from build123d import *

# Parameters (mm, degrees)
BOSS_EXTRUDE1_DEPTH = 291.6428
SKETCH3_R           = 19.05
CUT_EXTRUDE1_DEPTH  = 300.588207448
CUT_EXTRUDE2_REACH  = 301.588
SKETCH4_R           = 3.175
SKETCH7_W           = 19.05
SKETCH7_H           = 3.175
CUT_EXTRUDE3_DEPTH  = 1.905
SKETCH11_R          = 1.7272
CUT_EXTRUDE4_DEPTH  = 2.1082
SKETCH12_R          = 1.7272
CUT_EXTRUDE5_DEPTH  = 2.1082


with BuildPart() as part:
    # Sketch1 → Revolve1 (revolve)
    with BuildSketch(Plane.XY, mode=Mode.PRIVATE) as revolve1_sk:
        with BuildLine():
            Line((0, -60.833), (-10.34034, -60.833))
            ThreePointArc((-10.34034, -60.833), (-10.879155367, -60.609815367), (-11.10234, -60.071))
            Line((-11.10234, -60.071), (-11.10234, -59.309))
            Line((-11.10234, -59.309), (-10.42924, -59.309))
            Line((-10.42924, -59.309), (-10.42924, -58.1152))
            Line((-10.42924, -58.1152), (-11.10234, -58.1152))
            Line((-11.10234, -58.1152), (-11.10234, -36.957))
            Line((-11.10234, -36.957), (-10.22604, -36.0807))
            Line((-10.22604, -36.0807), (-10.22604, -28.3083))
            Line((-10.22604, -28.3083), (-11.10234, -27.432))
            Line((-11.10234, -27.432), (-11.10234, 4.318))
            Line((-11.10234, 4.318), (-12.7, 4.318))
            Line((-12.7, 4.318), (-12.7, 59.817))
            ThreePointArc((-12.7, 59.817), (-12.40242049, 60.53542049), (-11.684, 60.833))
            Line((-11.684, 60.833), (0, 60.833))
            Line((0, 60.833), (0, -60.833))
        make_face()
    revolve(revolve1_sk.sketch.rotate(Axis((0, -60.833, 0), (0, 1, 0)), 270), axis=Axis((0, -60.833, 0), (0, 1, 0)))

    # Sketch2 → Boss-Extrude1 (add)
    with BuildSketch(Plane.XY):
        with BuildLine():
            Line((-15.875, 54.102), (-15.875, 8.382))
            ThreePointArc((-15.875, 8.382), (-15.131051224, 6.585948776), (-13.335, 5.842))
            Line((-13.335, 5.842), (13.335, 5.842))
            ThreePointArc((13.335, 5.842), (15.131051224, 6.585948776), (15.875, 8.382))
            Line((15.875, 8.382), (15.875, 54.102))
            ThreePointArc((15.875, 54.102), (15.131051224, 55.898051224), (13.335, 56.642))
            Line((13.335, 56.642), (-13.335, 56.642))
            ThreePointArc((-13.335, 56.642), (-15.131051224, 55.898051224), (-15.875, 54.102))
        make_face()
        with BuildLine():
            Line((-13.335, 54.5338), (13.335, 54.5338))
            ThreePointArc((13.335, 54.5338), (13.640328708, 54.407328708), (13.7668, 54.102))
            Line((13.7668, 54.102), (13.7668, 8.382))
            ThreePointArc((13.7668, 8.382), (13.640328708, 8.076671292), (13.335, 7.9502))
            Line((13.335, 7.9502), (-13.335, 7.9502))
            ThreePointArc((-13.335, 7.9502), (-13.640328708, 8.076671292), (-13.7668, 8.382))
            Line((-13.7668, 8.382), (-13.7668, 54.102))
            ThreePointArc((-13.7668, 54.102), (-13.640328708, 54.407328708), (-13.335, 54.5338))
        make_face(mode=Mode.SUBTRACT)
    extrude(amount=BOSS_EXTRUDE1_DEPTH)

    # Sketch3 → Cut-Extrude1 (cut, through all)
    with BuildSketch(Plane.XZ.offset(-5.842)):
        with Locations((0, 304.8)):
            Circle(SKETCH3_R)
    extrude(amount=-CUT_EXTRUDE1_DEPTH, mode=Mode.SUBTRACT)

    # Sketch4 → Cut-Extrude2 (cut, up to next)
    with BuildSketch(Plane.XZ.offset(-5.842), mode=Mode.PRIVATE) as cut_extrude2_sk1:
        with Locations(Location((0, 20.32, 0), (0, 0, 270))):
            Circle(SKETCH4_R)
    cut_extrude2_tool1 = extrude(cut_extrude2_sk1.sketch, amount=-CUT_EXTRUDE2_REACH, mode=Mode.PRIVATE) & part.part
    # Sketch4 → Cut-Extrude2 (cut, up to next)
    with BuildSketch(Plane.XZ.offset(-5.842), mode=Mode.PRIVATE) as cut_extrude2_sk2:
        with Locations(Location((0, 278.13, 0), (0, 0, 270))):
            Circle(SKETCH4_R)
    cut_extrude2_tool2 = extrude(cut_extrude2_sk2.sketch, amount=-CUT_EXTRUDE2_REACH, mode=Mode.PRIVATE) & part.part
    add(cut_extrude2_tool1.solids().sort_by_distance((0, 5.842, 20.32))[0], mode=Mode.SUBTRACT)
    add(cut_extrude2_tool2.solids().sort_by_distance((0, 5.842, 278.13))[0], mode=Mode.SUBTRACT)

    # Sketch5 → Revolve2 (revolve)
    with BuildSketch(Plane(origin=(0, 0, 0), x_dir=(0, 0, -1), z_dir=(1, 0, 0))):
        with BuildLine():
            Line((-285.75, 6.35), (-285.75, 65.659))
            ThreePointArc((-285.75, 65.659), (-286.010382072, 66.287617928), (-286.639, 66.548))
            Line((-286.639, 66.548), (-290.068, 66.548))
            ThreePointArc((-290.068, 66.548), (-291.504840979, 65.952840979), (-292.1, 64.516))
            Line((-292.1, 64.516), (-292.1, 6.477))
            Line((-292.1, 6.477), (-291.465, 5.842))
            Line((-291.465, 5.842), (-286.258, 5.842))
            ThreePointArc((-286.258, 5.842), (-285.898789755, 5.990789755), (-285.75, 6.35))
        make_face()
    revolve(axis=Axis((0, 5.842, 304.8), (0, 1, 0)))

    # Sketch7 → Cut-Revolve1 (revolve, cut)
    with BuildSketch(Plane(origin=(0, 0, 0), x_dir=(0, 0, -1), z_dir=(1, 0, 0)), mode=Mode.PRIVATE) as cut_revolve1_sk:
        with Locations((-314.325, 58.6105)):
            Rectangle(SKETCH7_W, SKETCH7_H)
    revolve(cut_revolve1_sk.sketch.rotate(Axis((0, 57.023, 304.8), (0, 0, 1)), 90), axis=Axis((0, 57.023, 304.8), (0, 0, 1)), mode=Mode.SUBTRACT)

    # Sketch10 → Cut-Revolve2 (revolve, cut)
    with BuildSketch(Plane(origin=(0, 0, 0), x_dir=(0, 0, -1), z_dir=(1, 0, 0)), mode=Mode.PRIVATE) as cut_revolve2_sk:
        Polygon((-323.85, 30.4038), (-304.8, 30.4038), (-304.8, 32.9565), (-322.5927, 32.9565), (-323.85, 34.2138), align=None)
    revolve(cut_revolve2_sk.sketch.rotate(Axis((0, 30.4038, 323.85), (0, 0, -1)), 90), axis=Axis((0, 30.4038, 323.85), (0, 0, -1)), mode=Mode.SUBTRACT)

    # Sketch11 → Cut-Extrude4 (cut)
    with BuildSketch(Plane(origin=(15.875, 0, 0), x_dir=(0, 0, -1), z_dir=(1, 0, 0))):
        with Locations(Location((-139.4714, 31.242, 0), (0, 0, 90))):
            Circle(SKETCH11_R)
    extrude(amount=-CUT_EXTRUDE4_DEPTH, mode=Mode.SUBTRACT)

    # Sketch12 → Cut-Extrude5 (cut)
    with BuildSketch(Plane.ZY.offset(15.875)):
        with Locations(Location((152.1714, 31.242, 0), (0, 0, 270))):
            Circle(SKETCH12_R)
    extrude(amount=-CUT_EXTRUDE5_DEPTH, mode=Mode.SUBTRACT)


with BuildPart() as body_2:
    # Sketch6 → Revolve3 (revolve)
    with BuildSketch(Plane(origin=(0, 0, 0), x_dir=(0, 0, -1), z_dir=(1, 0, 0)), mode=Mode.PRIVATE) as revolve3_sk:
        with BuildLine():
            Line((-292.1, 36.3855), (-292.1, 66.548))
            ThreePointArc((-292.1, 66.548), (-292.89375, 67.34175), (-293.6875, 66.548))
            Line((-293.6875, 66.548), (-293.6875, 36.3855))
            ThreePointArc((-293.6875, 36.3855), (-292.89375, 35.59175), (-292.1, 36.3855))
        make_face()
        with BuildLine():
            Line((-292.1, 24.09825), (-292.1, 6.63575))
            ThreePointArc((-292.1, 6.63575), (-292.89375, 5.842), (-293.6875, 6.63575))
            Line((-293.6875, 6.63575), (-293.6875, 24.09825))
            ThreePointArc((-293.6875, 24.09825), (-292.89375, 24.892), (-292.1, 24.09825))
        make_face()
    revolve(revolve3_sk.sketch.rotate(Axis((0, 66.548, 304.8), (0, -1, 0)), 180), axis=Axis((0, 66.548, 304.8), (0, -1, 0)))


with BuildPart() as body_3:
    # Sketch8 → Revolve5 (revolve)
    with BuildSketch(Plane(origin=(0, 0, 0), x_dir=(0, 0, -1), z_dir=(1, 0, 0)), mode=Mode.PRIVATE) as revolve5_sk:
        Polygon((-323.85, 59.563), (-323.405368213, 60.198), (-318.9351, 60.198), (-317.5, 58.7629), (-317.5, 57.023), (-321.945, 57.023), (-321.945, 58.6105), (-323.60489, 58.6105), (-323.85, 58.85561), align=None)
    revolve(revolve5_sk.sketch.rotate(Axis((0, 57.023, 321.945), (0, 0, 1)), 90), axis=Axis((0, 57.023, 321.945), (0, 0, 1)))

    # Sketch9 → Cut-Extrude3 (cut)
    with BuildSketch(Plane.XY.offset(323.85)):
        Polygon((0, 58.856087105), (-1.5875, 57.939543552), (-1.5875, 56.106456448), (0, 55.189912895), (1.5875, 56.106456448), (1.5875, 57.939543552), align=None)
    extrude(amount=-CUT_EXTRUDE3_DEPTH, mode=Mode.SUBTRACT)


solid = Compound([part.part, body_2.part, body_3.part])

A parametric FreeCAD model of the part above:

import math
import FreeCAD as App
import Part
import Sketcher
Q = App.Units.Quantity


def add_polygon(sketch, points):
    """Adds a closed chain of lines whose ends are joined by coincident constraints."""
    first, n = sketch.GeometryCount, len(points)
    for a, b in zip(points, points[1:] + points[:1]):
        sketch.addGeometry(Part.LineSegment(App.Vector(*a, 0), App.Vector(*b, 0)), False)
    for i in range(n):
        sketch.addConstraint(Sketcher.Constraint("Coincident", first + i, 2, first + (i + 1) % n, 1))

doc = App.newDocument("Part")
params = doc.addObject("Spreadsheet::Sheet", "Params")
for row, (alias, value) in enumerate([
    ("sketch1_radius", "0.04 in"),
    ("sketch1_radius2", "0.03 in"),
    ("sketch1_width", "0.46 in"),
    ("sketch1_height", "4.79 in"),
    ("sketch1_height2", "1.25 in"),
    ("revolution_angle", "360 deg"),
    ("sketch2_radius", "0.1 in"),
    ("sketch2_height", "1.8 in"),
    ("sketch2_radius2", "0.017 in"),
    ("sketch2_width", "1.05 in"),
    ("pad1_length", "11.482 in"),
    ("sketch3_diameter", "1.5 in"),
    ("sketch4_diameter", "0.25 in"),
    ("sketch5_diameter", "0.25 in"),
    ("sketch6_radius", "0.08 in"),
    ("sketch6_radius2", "0.02 in"),
    ("sketch6_radius3", "0.035 in"),
    ("sketch6_width", "2.39 in"),
    ("sketch6_width2", "2.285 in"),
    ("revolution2_angle", "360 deg"),
    ("sketch7_height", "0.75 in"),
    ("sketch7_width", "0.125 in"),
    ("groove_angle", "360 deg"),
    ("sketch8_width", "0.15 in"),
    ("sketch8_height", "0.75 in"),
    ("groove2_angle", "360 deg"),
    ("sketch9_diameter", "0.136 in"),
    ("pocket4_length", "0.083 in"),
    ("sketch10_diameter", "0.136 in"),
    ("pocket5_length", "0.083 in"),
    ("sketch11_radius", "0.03125 in"),
    ("sketch11_width", "1.1875 in"),
    ("sketch11_width2", "0.6875 in"),
    ("revolution3_angle", "360 deg"),
    ("sketch12_height", "0.25 in"),
    ("sketch12_width", "0.0625 in"),
    ("sketch12_height2", "0.175 in"),
    ("revolution4_angle", "360 deg"),
    ("pocket6_length", "0.075 in"),
], start=1):
    params.set(f"A{row}", alias)
    params.set(f"B{row}", "=" + value)
    params.setAlias(f"B{row}", alias)

body = doc.addObject("PartDesign::Body", "Body")

# Sketch on XY plane
sketch1 = doc.addObject("Sketcher::SketchObject", "Sketch")
body.addObject(sketch1)
sketch1.AttachmentSupport = (doc.XY_Plane, [""])
sketch1.MapMode = "FlatFace"
sketch1.addGeometry(Part.LineSegment(App.Vector(-10.3, -60.8, 0), App.Vector(0, -60.8, 0)), False)
sketch1.addGeometry(Part.LineSegment(App.Vector(0, -60.8, 0), App.Vector(0, 60.8, 0)), False)
sketch1.addGeometry(Part.LineSegment(App.Vector(0, 60.8, 0), App.Vector(-11.7, 60.8, 0)), False)
sketch1.addGeometry(Part.ArcOfCircle(Part.Circle(App.Vector(-11.7, 59.8, 0), App.Vector(0, 0, 1), 1), math.radians(90), math.radians(180)), False)
sketch1.addGeometry(Part.LineSegment(App.Vector(-12.7, 59.8, 0), App.Vector(-12.7, 4.3, 0)), False)
sketch1.addGeometry(Part.LineSegment(App.Vector(-12.7, 4.3, 0), App.Vector(-11.1, 4.3, 0)), False)
sketch1.addGeometry(Part.LineSegment(App.Vector(-11.1, 4.3, 0), App.Vector(-11.1, -27.4, 0)), False)
sketch1.addGeometry(Part.LineSegment(App.Vector(-11.1, -27.4, 0), App.Vector(-10.2, -28.3, 0)), False)
sketch1.addGeometry(Part.LineSegment(App.Vector(-10.2, -28.3, 0), App.Vector(-10.2, -36.1, 0)), False)
sketch1.addGeometry(Part.LineSegment(App.Vector(-10.2, -36.1, 0), App.Vector(-11.1, -37, 0)), False)
sketch1.addGeometry(Part.LineSegment(App.Vector(-11.1, -37, 0), App.Vector(-11.1, -58.1, 0)), False)
sketch1.addGeometry(Part.LineSegment(App.Vector(-11.1, -58.1, 0), App.Vector(-10.4, -58.1, 0)), False)
sketch1.addGeometry(Part.LineSegment(App.Vector(-10.4, -58.1, 0), App.Vector(-10.4, -59.3, 0)), False)
sketch1.addGeometry(Part.LineSegment(App.Vector(-10.4, -59.3, 0), App.Vector(-11.1, -59.3, 0)), False)
sketch1.addGeometry(Part.LineSegment(App.Vector(-11.1, -59.3, 0), App.Vector(-11.1, -60.1, 0)), False)
sketch1.addGeometry(Part.ArcOfCircle(Part.Circle(App.Vector(-10.3, -60.1, 0), App.Vector(0, 0, 1), 0.8), math.radians(-180), math.radians(-90)), False)
sketch1.addConstraint(Sketcher.Constraint("Coincident", 0, 2, 1, 1))
sketch1.addConstraint(Sketcher.Constraint("Coincident", 1, 2, 2, 1))
sketch1.addConstraint(Sketcher.Constraint("Tangent", 2, 2, 3, 1))
sketch1.addConstraint(Sketcher.Constraint("Tangent", 3, 2, 4, 1))
sketch1.addConstraint(Sketcher.Constraint("Coincident", 4, 2, 5, 1))
sketch1.addConstraint(Sketcher.Constraint("Coincident", 5, 2, 6, 1))
sketch1.addConstraint(Sketcher.Constraint("Coincident", 6, 2, 7, 1))
sketch1.addConstraint(Sketcher.Constraint("Coincident", 7, 2, 8, 1))
sketch1.addConstraint(Sketcher.Constraint("Coincident", 8, 2, 9, 1))
sketch1.addConstraint(Sketcher.Constraint("Coincident", 9, 2, 10, 1))
sketch1.addConstraint(Sketcher.Constraint("Coincident", 10, 2, 11, 1))
sketch1.addConstraint(Sketcher.Constraint("Coincident", 11, 2, 12, 1))
sketch1.addConstraint(Sketcher.Constraint("Coincident", 12, 2, 13, 1))
sketch1.addConstraint(Sketcher.Constraint("Coincident", 13, 2, 14, 1))
sketch1.addConstraint(Sketcher.Constraint("Tangent", 14, 2, 15, 1))
sketch1.addConstraint(Sketcher.Constraint("Tangent", 15, 2, 0, 1))
sketch1.addConstraint(Sketcher.Constraint("Horizontal", 0))
sketch1.addConstraint(Sketcher.Constraint("Vertical", 1))
sketch1.addConstraint(Sketcher.Constraint("Horizontal", 2))
sketch1.addConstraint(Sketcher.Constraint("Vertical", 4))
sketch1.addConstraint(Sketcher.Constraint("Horizontal", 5))
sketch1.addConstraint(Sketcher.Constraint("Vertical", 6))
sketch1.addConstraint(Sketcher.Constraint("Vertical", 8))
sketch1.addConstraint(Sketcher.Constraint("Vertical", 10))
sketch1.addConstraint(Sketcher.Constraint("Horizontal", 11))
sketch1.addConstraint(Sketcher.Constraint("Vertical", 12))
sketch1.addConstraint(Sketcher.Constraint("Horizontal", 13))
sketch1.addConstraint(Sketcher.Constraint("Vertical", 14))
sketch1.addConstraint(Sketcher.Constraint("Symmetric", 0, 2, 1, 2, -1, 1))
sketch1.addConstraint(Sketcher.Constraint("Perpendicular", 7, 9))
sketch1.addConstraint(Sketcher.Constraint("Vertical", 6, 2, 9, 2))
sketch1.addConstraint(Sketcher.Constraint("Vertical", 10, 2, 13, 2))
sketch1.addConstraint(Sketcher.Constraint("Equal", 7, 9))
sketch1.addConstraint(Sketcher.Constraint("Radius", 3, Q("0.04 in")))
sketch1.addConstraint(Sketcher.Constraint("Radius", 15, Q("0.03 in")))
sketch1.addConstraint(Sketcher.Constraint("DistanceX", 2, 2, 2, 1, Q("0.46 in")))
sketch1.addConstraint(Sketcher.Constraint("DistanceY", 1, 1, 1, 2, Q("4.79 in")))
sketch1.addConstraint(Sketcher.Constraint("DistanceY", 6, 2, 6, 1, Q("1.25 in")))
sketch1.addConstraint(Sketcher.Constraint("DistanceY", 14, 2, 14, 1, Q("0.03 in")))
sketch1.addConstraint(Sketcher.Constraint("DistanceY", 4, 2, 4, 1, Q("2.185 in")))
sketch1.addConstraint(Sketcher.Constraint("DistanceY", 8, 2, 8, 1, Q("0.306 in")))
sketch1.addConstraint(Sketcher.Constraint("DistanceY", 10, 2, 10, 1, Q("0.833 in")))
sketch1.addConstraint(Sketcher.Constraint("DistanceY", 12, 2, 12, 1, Q("0.047 in")))
sketch1.addConstraint(Sketcher.Constraint("DistanceX", 0, 1, 0, 2, Q("0.4071 in")))
sketch1.addConstraint(Sketcher.Constraint("DistanceX", 11, 1, 11, 2, Q("0.0265 in")))
sketch1.setExpression("Constraints[33]", "Params.sketch1_radius")
sketch1.setExpression("Constraints[34]", "Params.sketch1_radius2")
sketch1.setExpression("Constraints[35]", "Params.sketch1_width")
sketch1.setExpression("Constraints[36]", "Params.sketch1_height")
sketch1.setExpression("Constraints[37]", "Params.sketch1_height2")
revolution = doc.addObject("PartDesign::Revolution", "Revolution")
body.addObject(revolution)
revolution.Profile = sketch1
revolution.ReferenceAxis = (sketch1, ["V_Axis"])
revolution.setExpression("Angle", "Params.revolution_angle")

# Sketch on XY plane
sketch2 = doc.addObject("Sketcher::SketchObject", "Sketch001")
body.addObject(sketch2)
sketch2.AttachmentSupport = (doc.XY_Plane, [""])
sketch2.MapMode = "FlatFace"
sketch2.addGeometry(Part.LineSegment(App.Vector(-15.88, 54.1, 0), App.Vector(-15.88, 8.38, 0)), False)
sketch2.addGeometry(Part.ArcOfCircle(Part.Circle(App.Vector(-13.33, 8.38, 0), App.Vector(0, 0, 1), 2.54), math.radians(-180), math.radians(-90)), False)
sketch2.addGeometry(Part.LineSegment(App.Vector(-13.34, 5.84, 0), App.Vector(13.34, 5.84, 0)), False)
sketch2.addGeometry(Part.ArcOfCircle(Part.Circle(App.Vector(13.33, 8.38, 0), App.Vector(0, 0, 1), 2.54), math.radians(-90), math.radians(0)), False)
sketch2.addGeometry(Part.LineSegment(App.Vector(15.88, 8.38, 0), App.Vector(15.88, 54.1, 0)), False)
sketch2.addGeometry(Part.ArcOfCircle(Part.Circle(App.Vector(13.33, 54.1, 0), App.Vector(0, 0, 1), 2.54), math.radians(0), math.radians(90)), False)
sketch2.addGeometry(Part.LineSegment(App.Vector(13.34, 56.64, 0), App.Vector(-13.34, 56.64, 0)), False)
sketch2.addGeometry(Part.ArcOfCircle(Part.Circle(App.Vector(-13.33, 54.1, 0), App.Vector(0, 0, 1), 2.54), math.radians(90), math.radians(180)), False)
sketch2.addGeometry(Part.ArcOfCircle(Part.Circle(App.Vector(-13.34, 54.1, 0), App.Vector(0, 0, 1), 0.43), math.radians(90), math.radians(180)), False)
sketch2.addGeometry(Part.LineSegment(App.Vector(-13.34, 54.53, 0), App.Vector(13.34, 54.53, 0)), False)
sketch2.addGeometry(Part.ArcOfCircle(Part.Circle(App.Vector(13.34, 54.1, 0), App.Vector(0, 0, 1), 0.43), math.radians(0), math.radians(90)), False)
sketch2.addGeometry(Part.LineSegment(App.Vector(13.77, 54.1, 0), App.Vector(13.77, 8.38, 0)), False)
sketch2.addGeometry(Part.ArcOfCircle(Part.Circle(App.Vector(13.34, 8.38, 0), App.Vector(0, 0, 1), 0.43), math.radians(-90), math.radians(0)), False)
sketch2.addGeometry(Part.LineSegment(App.Vector(13.34, 7.95, 0), App.Vector(-13.34, 7.95, 0)), False)
sketch2.addGeometry(Part.ArcOfCircle(Part.Circle(App.Vector(-13.34, 8.38, 0), App.Vector(0, 0, 1), 0.43), math.radians(180), math.radians(270)), False)
sketch2.addGeometry(Part.LineSegment(App.Vector(-13.77, 8.38, 0), App.Vector(-13.77, 54.1, 0)), False)
sketch2.addConstraint(Sketcher.Constraint("Tangent", 0, 2, 1, 1))
sketch2.addConstraint(Sketcher.Constraint("Tangent", 1, 2, 2, 1))
sketch2.addConstraint(Sketcher.Constraint("Tangent", 2, 2, 3, 1))
sketch2.addConstraint(Sketcher.Constraint("Tangent", 3, 2, 4, 1))
sketch2.addConstraint(Sketcher.Constraint("Tangent", 4, 2, 5, 1))
sketch2.addConstraint(Sketcher.Constraint("Tangent", 5, 2, 6, 1))
sketch2.addConstraint(Sketcher.Constraint("Tangent", 6, 2, 7, 1))
sketch2.addConstraint(Sketcher.Constraint("Tangent", 7, 2, 0, 1))
sketch2.addConstraint(Sketcher.Constraint("Tangent", 8, 1, 9, 1))
sketch2.addConstraint(Sketcher.Constraint("Tangent", 9, 2, 10, 2))
sketch2.addConstraint(Sketcher.Constraint("Tangent", 10, 1, 11, 1))
sketch2.addConstraint(Sketcher.Constraint("Tangent", 11, 2, 12, 2))
sketch2.addConstraint(Sketcher.Constraint("Tangent", 12, 1, 13, 1))
sketch2.addConstraint(Sketcher.Constraint("Tangent", 13, 2, 14, 2))
sketch2.addConstraint(Sketcher.Constraint("Tangent", 14, 1, 15, 1))
sketch2.addConstraint(Sketcher.Constraint("Tangent", 15, 2, 8, 2))
sketch2.addConstraint(Sketcher.Constraint("Vertical", 0))
sketch2.addConstraint(Sketcher.Constraint("Horizontal", 2))
sketch2.addConstraint(Sketcher.Constraint("Vertical", 4))
sketch2.addConstraint(Sketcher.Constraint("Horizontal", 6))
sketch2.addConstraint(Sketcher.Constraint("Horizontal", 9))
sketch2.addConstraint(Sketcher.Constraint("Vertical", 11))
sketch2.addConstraint(Sketcher.Constraint("Horizontal", 13))
sketch2.addConstraint(Sketcher.Constraint("Vertical", 15))
sketch2.addConstraint(Sketcher.Constraint("Coincident", 8, 3, 7, 3))
sketch2.addConstraint(Sketcher.Constraint("Coincident", 10, 3, 5, 3))
sketch2.addConstraint(Sketcher.Constraint("Coincident", 12, 3, 3, 3))
sketch2.addConstraint(Sketcher.Constraint("Equal", 1, 3))
sketch2.addConstraint(Sketcher.Constraint("Equal", 3, 5))
sketch2.addConstraint(Sketcher.Constraint("Equal", 5, 7))
sketch2.addConstraint(Sketcher.Constraint("Equal", 12, 14))
sketch2.addConstraint(Sketcher.Constraint("Radius", 1, Q("0.1 in")))
sketch2.addConstraint(Sketcher.Constraint("DistanceY", 0, 2, 0, 1, Q("1.8 in")))
sketch2.addConstraint(Sketcher.Constraint("Radius", 8, Q("0.017 in")))
sketch2.addConstraint(Sketcher.Constraint("DistanceX", 2, 1, 2, 2, Q("1.05 in")))
sketch2.addConstraint(Sketcher.Constraint("DistanceY", -1, 1, 1, 3, Q("0.33 in")))
sketch2.addConstraint(Sketcher.Constraint("DistanceX", 1, 3, -1, 1, Q("0.525 in")))
sketch2.setExpression("Constraints[31]", "Params.sketch2_radius")
sketch2.setExpression("Constraints[32]", "Params.sketch2_height")
sketch2.setExpression("Constraints[33]", "Params.sketch2_radius2")
sketch2.setExpression("Constraints[34]", "Params.sketch2_width")
pad1 = doc.addObject("PartDesign::Pad", "Pad")
body.addObject(pad1)
pad1.Profile = sketch2
pad1.setExpression("Length", "Params.pad1_length")

# Sketch on XZ plane
sketch3 = doc.addObject("Sketcher::SketchObject", "Sketch002")
body.addObject(sketch3)
sketch3.AttachmentSupport = (doc.XZ_Plane, [""])
sketch3.MapMode = "FlatFace"
sketch3.AttachmentOffset = App.Placement(App.Vector(0, 0, -0.23 * 25.4), App.Rotation())
sketch3.addGeometry(Part.Circle(App.Vector(0, 305, 0), App.Vector(0, 0, 1), 19), False)
sketch3.addConstraint(Sketcher.Constraint("PointOnObject", 0, 3, -2))
sketch3.addConstraint(Sketcher.Constraint("Diameter", 0, Q("1.5 in")))
sketch3.addConstraint(Sketcher.Constraint("DistanceY", -1, 1, 0, 3, Q("12 in")))
sketch3.setExpression("Constraints[1]", "Params.sketch3_diameter")
pocket1 = doc.addObject("PartDesign::Pocket", "Pocket")
body.addObject(pocket1)
pocket1.Profile = sketch3
pocket1.Type = "ThroughAll"

# Sketch on XZ plane
sketch4 = doc.addObject("Sketcher::SketchObject", "Sketch003")
body.addObject(sketch4)
sketch4.AttachmentSupport = (doc.XZ_Plane, [""])
sketch4.MapMode = "FlatFace"
sketch4.AttachmentOffset = App.Placement(App.Vector(0, 0, -0.23 * 25.4), App.Rotation())
sketch4.addGeometry(Part.Circle(App.Vector(0, 20.3, 0), App.Vector(0, 0, 1), 3.2), False)
sketch4.addConstraint(Sketcher.Constraint("PointOnObject", 0, 3, -2))
sketch4.addConstraint(Sketcher.Constraint("Diameter", 0, Q("0.25 in")))
sketch4.addConstraint(Sketcher.Constraint("DistanceY", -1, 1, 0, 3, Q("0.8 in")))
sketch4.setExpression("Constraints[1]", "Params.sketch4_diameter")
pocket2 = doc.addObject("PartDesign::Pocket", "Pocket001")
body.addObject(pocket2)
pocket2.Profile = sketch4
pocket2.Type = "UpToFirst"

# Sketch on XZ plane
sketch5 = doc.addObject("Sketcher::SketchObject", "Sketch004")
body.addObject(sketch5)
sketch5.AttachmentSupport = (doc.XZ_Plane, [""])
sketch5.MapMode = "FlatFace"
sketch5.AttachmentOffset = App.Placement(App.Vector(0, 0, -0.23 * 25.4), App.Rotation())
sketch5.addGeometry(Part.Circle(App.Vector(0, 278.1, 0), App.Vector(0, 0, 1), 3.2), False)
sketch5.addConstraint(Sketcher.Constraint("PointOnObject", 0, 3, -2))
sketch5.addConstraint(Sketcher.Constraint("Diameter", 0, Q("0.25 in")))
sketch5.addConstraint(Sketcher.Constraint("DistanceY", -1, 1, 0, 3, Q("10.95 in")))
sketch5.setExpression("Constraints[1]", "Params.sketch5_diameter")
pocket3 = doc.addObject("PartDesign::Pocket", "Pocket002")
body.addObject(pocket3)
pocket3.Profile = sketch5
pocket3.Type = "UpToFirst"

# Sketch on YZ plane
sketch6 = doc.addObject("Sketcher::SketchObject", "Sketch005")
body.addObject(sketch6)
sketch6.AttachmentSupport = (doc.YZ_Plane, [""])
sketch6.MapMode = "FlatFace"
sketch6.addGeometry(Part.LineSegment(App.Vector(6.3, 285.8, 0), App.Vector(65.7, 285.8, 0)), False)
sketch6.addGeometry(Part.ArcOfCircle(Part.Circle(App.Vector(65.7, 286.6, 0), App.Vector(0, 0, 1), 0.9), math.radians(-90), math.radians(0)), False)
sketch6.addGeometry(Part.LineSegment(App.Vector(66.5, 286.6, 0), App.Vector(66.5, 290.1, 0)), False)
sketch6.addGeometry(Part.ArcOfCircle(Part.Circle(App.Vector(64.5, 290.1, 0), App.Vector(0, 0, 1), 2), math.radians(0), math.radians(90)), False)
sketch6.addGeometry(Part.LineSegment(App.Vector(64.5, 292.1, 0), App.Vector(6.5, 292.1, 0)), False)
sketch6.addGeometry(Part.LineSegment(App.Vector(6.5, 292.1, 0), App.Vector(5.8, 291.5, 0)), False)
sketch6.addGeometry(Part.LineSegment(App.Vector(5.8, 291.5, 0), App.Vector(5.8, 286.3, 0)), False)
sketch6.addGeometry(Part.ArcOfCircle(Part.Circle(App.Vector(6.3, 286.3, 0), App.Vector(0, 0, 1), 0.5), math.radians(180), math.radians(270)), False)
sketch6.addGeometry(Part.LineSegment(App.Vector(5.8, 304.8, 0), App.Vector(66.5, 304.8, 0)), True)  # axis
sketch6.addConstraint(Sketcher.Constraint("Tangent", 0, 2, 1, 1))
sketch6.addConstraint(Sketcher.Constraint("Tangent", 1, 2, 2, 1))
sketch6.addConstraint(Sketcher.Constraint("Tangent", 2, 2, 3, 1))
sketch6.addConstraint(Sketcher.Constraint("Tangent", 3, 2, 4, 1))
sketch6.addConstraint(Sketcher.Constraint("Coincident", 4, 2, 5, 1))
sketch6.addConstraint(Sketcher.Constraint("Coincident", 5, 2, 6, 1))
sketch6.addConstraint(Sketcher.Constraint("Tangent", 6, 2, 7, 1))
sketch6.addConstraint(Sketcher.Constraint("Tangent", 7, 2, 0, 1))
sketch6.addConstraint(Sketcher.Constraint("Horizontal", 0))
sketch6.addConstraint(Sketcher.Constraint("Vertical", 2))
sketch6.addConstraint(Sketcher.Constraint("Horizontal", 4))
sketch6.addConstraint(Sketcher.Constraint("Vertical", 6))
sketch6.addConstraint(Sketcher.Constraint("Horizontal", 8))
sketch6.addConstraint(Sketcher.Constraint("Vertical", 6, 2, 8, 1))
sketch6.addConstraint(Sketcher.Constraint("Vertical", 2, 2, 8, 2))
sketch6.addConstraint(Sketcher.Constraint("Radius", 3, Q("0.08 in")))
sketch6.addConstraint(Sketcher.Constraint("Radius", 7, Q("0.02 in")))
sketch6.addConstraint(Sketcher.Constraint("DistanceY", -1, 1, 8, 1, Q("12 in")))
sketch6.addConstraint(Sketcher.Constraint("Angle", 5, Q("-135 deg")))
sketch6.addConstraint(Sketcher.Constraint("Radius", 1, Q("0.035 in")))
sketch6.addConstraint(Sketcher.Constraint("DistanceX", 8, 1, 8, 2, Q("2.39 in")))
sketch6.addConstraint(Sketcher.Constraint("DistanceY", -1, 1, 3, 2, Q("11.5 in")))
sketch6.addConstraint(Sketcher.Constraint("DistanceX", 4, 2, 4, 1, Q("2.285 in")))
sketch6.addConstraint(Sketcher.Constraint("DistanceY", 2, 1, 2, 2, Q("0.135 in")))
sketch6.addConstraint(Sketcher.Constraint("DistanceX", -1, 1, 3, 3, Q("2.54 in")))
sketch6.setExpression("Constraints[15]", "Params.sketch6_radius")
sketch6.setExpression("Constraints[16]", "Params.sketch6_radius2")
sketch6.setExpression("Constraints[19]", "Params.sketch6_radius3")
sketch6.setExpression("Constraints[20]", "Params.sketch6_width")
sketch6.setExpression("Constraints[22]", "Params.sketch6_width2")
revolution2 = doc.addObject("PartDesign::Revolution", "Revolution001")
body.addObject(revolution2)
revolution2.Profile = sketch6
revolution2.ReferenceAxis = (sketch6, ["Axis0"])
revolution2.setExpression("Angle", "Params.revolution2_angle")

# Sketch on YZ plane
sketch7 = doc.addObject("Sketcher::SketchObject", "Sketch006")
body.addObject(sketch7)
sketch7.AttachmentSupport = (doc.YZ_Plane, [""])
sketch7.MapMode = "FlatFace"
add_polygon(sketch7, [(60.2, 323.9), (57, 323.9), (57, 304.8), (60.2, 304.8)])  # lines 0-3
sketch7.addGeometry(Part.LineSegment(App.Vector(57, 304.8, 0), App.Vector(57, 323.9, 0)), True)  # axis
sketch7.addConstraint(Sketcher.Constraint("Horizontal", 0))
sketch7.addConstraint(Sketcher.Constraint("Vertical", 1))
sketch7.addConstraint(Sketcher.Constraint("Horizontal", 2))
sketch7.addConstraint(Sketcher.Constraint("Vertical", 3))
sketch7.addConstraint(Sketcher.Constraint("Vertical", 4))
sketch7.addConstraint(Sketcher.Constraint("Coincident", 4, 1, 1, 2))
sketch7.addConstraint(Sketcher.Constraint("Horizontal", 3, 2, 4, 2))
sketch7.addConstraint(Sketcher.Constraint("DistanceY", -1, 1, 1, 2, Q("12 in")))
sketch7.addConstraint(Sketcher.Constraint("DistanceY", 1, 2, 1, 1, Q("0.75 in")))
sketch7.addConstraint(Sketcher.Constraint("DistanceX", 0, 2, 0, 1, Q("0.125 in")))
sketch7.addConstraint(Sketcher.Constraint("DistanceX", -1, 1, 2, 2, Q("2.37 in")))
sketch7.setExpression("Constraints[12]", "Params.sketch7_height")
sketch7.setExpression("Constraints[13]", "Params.sketch7_width")
groove = doc.addObject("PartDesign::Groove", "Groove")
body.addObject(groove)
groove.Profile = sketch7
groove.ReferenceAxis = (sketch7, ["Axis0"])
groove.setExpression("Angle", "Params.groove_angle")

# Sketch on YZ plane
sketch8 = doc.addObject("Sketcher::SketchObject", "Sketch007")
body.addObject(sketch8)
sketch8.AttachmentSupport = (doc.YZ_Plane, [""])
sketch8.MapMode = "FlatFace"
add_polygon(sketch8, [(30.4, 323.9), (30.4, 304.8), (33, 304.8), (33, 322.6), (34.2, 323.9)])  # lines 0-4
sketch8.addGeometry(Part.LineSegment(App.Vector(30.4, 323.9, 0), App.Vector(30.4, 304.8, 0)), True)  # axis
sketch8.addConstraint(Sketcher.Constraint("Vertical", 0))
sketch8.addConstraint(Sketcher.Constraint("Horizontal", 1))
sketch8.addConstraint(Sketcher.Constraint("Vertical", 2))
sketch8.addConstraint(Sketcher.Constraint("Horizontal", 4))
sketch8.addConstraint(Sketcher.Constraint("Vertical", 5))
sketch8.addConstraint(Sketcher.Constraint("Coincident", 5, 1, 4, 2))
sketch8.addConstraint(Sketcher.Constraint("Horizontal", 1, 2, 5, 2))
sketch8.addConstraint(Sketcher.Constraint("DistanceY", -1, 1, 0, 2, Q("12 in")))
sketch8.addConstraint(Sketcher.Constraint("Angle", 3, Q("45 deg")))
sketch8.addConstraint(Sketcher.Constraint("DistanceX", 4, 2, 4, 1, Q("0.15 in")))
sketch8.addConstraint(Sketcher.Constraint("DistanceY", 0, 2, 0, 1, Q("0.75 in")))
sketch8.addConstraint(Sketcher.Constraint("DistanceX", 1, 1, 1, 2, Q("0.1005 in")))
sketch8.addConstraint(Sketcher.Constraint("DistanceX", -1, 1, 0, 2, Q("1.197 in")))
sketch8.setExpression("Constraints[14]", "Params.sketch8_width")
sketch8.setExpression("Constraints[15]", "Params.sketch8_height")
groove2 = doc.addObject("PartDesign::Groove", "Groove001")
body.addObject(groove2)
groove2.Profile = sketch8
groove2.ReferenceAxis = (sketch8, ["Axis0"])
groove2.setExpression("Angle", "Params.groove2_angle")

# Sketch on YZ plane
sketch9 = doc.addObject("Sketcher::SketchObject", "Sketch008")
body.addObject(sketch9)
sketch9.AttachmentSupport = (doc.YZ_Plane, [""])
sketch9.MapMode = "FlatFace"
sketch9.AttachmentOffset = App.Placement(App.Vector(0, 0, 0.625 * 25.4), App.Rotation())
sketch9.addGeometry(Part.Circle(App.Vector(31.2, 139.5, 0), App.Vector(0, 0, 1), 1.7), False)
sketch9.addConstraint(Sketcher.Constraint("Diameter", 0, Q("0.136 in")))
sketch9.addConstraint(Sketcher.Constraint("DistanceX", -1, 1, 0, 3, Q("1.23 in")))
sketch9.addConstraint(Sketcher.Constraint("DistanceY", -1, 1, 0, 3, Q("5.491 in")))
sketch9.setExpression("Constraints[0]", "Params.sketch9_diameter")
pocket4 = doc.addObject("PartDesign::Pocket", "Pocket003")
body.addObject(pocket4)
pocket4.Profile = sketch9
pocket4.setExpression("Length", "Params.pocket4_length")

# Sketch on YZ plane
sketch10 = doc.addObject("Sketcher::SketchObject", "Sketch009")
body.addObject(sketch10)
sketch10.AttachmentSupport = (doc.YZ_Plane, [""])
sketch10.MapMode = "FlatFace"
sketch10.AttachmentOffset = App.Placement(App.Vector(0, 0, -0.625 * 25.4), App.Rotation())
sketch10.addGeometry(Part.Circle(App.Vector(31.2, 152.2, 0), App.Vector(0, 0, 1), 1.7), False)
sketch10.addConstraint(Sketcher.Constraint("Diameter", 0, Q("0.136 in")))
sketch10.addConstraint(Sketcher.Constraint("DistanceX", -1, 1, 0, 3, Q("1.23 in")))
sketch10.addConstraint(Sketcher.Constraint("DistanceY", -1, 1, 0, 3, Q("5.991 in")))
sketch10.setExpression("Constraints[0]", "Params.sketch10_diameter")
pocket5 = doc.addObject("PartDesign::Pocket", "Pocket004")
body.addObject(pocket5)
pocket5.Profile = sketch10
pocket5.setExpression("Length", "Params.pocket5_length")
pocket5.Reversed = True
body2 = doc.addObject("PartDesign::Body", "Body001")
body2.AllowCompound = True

# Sketch on YZ plane
sketch11 = doc.addObject("Sketcher::SketchObject", "Sketch010")
body2.addObject(sketch11)
sketch11.AttachmentSupport = (doc.getObject("YZ_Plane001"), [""])
sketch11.MapMode = "FlatFace"
sketch11.addGeometry(Part.LineSegment(App.Vector(36.4, 292.1, 0), App.Vector(66.5, 292.1, 0)), False)
sketch11.addGeometry(Part.ArcOfCircle(Part.Circle(App.Vector(66.5, 292.9, 0), App.Vector(0, 0, 1), 0.8), math.radians(-90), math.radians(90)), False)
sketch11.addGeometry(Part.LineSegment(App.Vector(66.5, 293.7, 0), App.Vector(36.4, 293.7, 0)), False)
sketch11.addGeometry(Part.ArcOfCircle(Part.Circle(App.Vector(36.4, 292.9, 0), App.Vector(0, 0, 1), 0.8), math.radians(90), math.radians(270)), False)
sketch11.addGeometry(Part.LineSegment(App.Vector(6.6, 292.1, 0), App.Vector(24.1, 292.1, 0)), False)
sketch11.addGeometry(Part.ArcOfCircle(Part.Circle(App.Vector(24.1, 292.9, 0), App.Vector(0, 0, 1), 0.8), math.radians(-90), math.radians(90)), False)
sketch11.addGeometry(Part.LineSegment(App.Vector(24.1, 293.7, 0), App.Vector(6.6, 293.7, 0)), False)
sketch11.addGeometry(Part.ArcOfCircle(Part.Circle(App.Vector(6.6, 292.9, 0), App.Vector(0, 0, 1), 0.8), math.radians(90), math.radians(270)), False)
sketch11.addGeometry(Part.LineSegment(App.Vector(66.5, 304.8, 0), App.Vector(6.6, 304.8, 0)), True)  # axis
sketch11.addConstraint(Sketcher.Constraint("Tangent", 0, 2, 1, 1))
sketch11.addConstraint(Sketcher.Constraint("Tangent", 1, 2, 2, 1))
sketch11.addConstraint(Sketcher.Constraint("Tangent", 2, 2, 3, 1))
sketch11.addConstraint(Sketcher.Constraint("Tangent", 3, 2, 0, 1))
sketch11.addConstraint(Sketcher.Constraint("Tangent", 4, 2, 5, 1))
sketch11.addConstraint(Sketcher.Constraint("Tangent", 5, 2, 6, 1))
sketch11.addConstraint(Sketcher.Constraint("Tangent", 6, 2, 7, 1))
sketch11.addConstraint(Sketcher.Constraint("Tangent", 7, 2, 4, 1))
sketch11.addConstraint(Sketcher.Constraint("Horizontal", 0))
sketch11.addConstraint(Sketcher.Constraint("Horizontal", 2))
sketch11.addConstraint(Sketcher.Constraint("Horizontal", 4))
sketch11.addConstraint(Sketcher.Constraint("Horizontal", 6))
sketch11.addConstraint(Sketcher.Constraint("Horizontal", 8))
sketch11.addConstraint(Sketcher.Constraint("Equal", 3, 5))
sketch11.addConstraint(Sketcher.Constraint("Horizontal", 3, 3, 5, 3))
sketch11.addConstraint(Sketcher.Constraint("Vertical", 1, 2, 8, 1))
sketch11.addConstraint(Sketcher.Constraint("Vertical", 7, 2, 8, 2))
sketch11.addConstraint(Sketcher.Constraint("DistanceY", -1, 1, 8, 1, Q("12 in")))
sketch11.addConstraint(Sketcher.Constraint("Radius", 1, Q("0.03125 in")))
sketch11.addConstraint(Sketcher.Constraint("DistanceY", -1, 1, 0, 2, Q("11.5 in")))
sketch11.addConstraint(Sketcher.Constraint("DistanceX", 0, 1, 0, 2, Q("1.1875 in")))
sketch11.addConstraint(Sketcher.Constraint("DistanceX", 4, 1, 4, 2, Q("0.6875 in")))
sketch11.addConstraint(Sketcher.Constraint("DistanceX", -1, 1, 1, 3, Q("2.62 in")))
sketch11.addConstraint(Sketcher.Constraint("DistanceX", 8, 2, 8, 1, Q("59.91225 mm")))
sketch11.setExpression("Constraints[18]", "Params.sketch11_radius")
sketch11.setExpression("Constraints[20]", "Params.sketch11_width")
sketch11.setExpression("Constraints[21]", "Params.sketch11_width2")
revolution3 = doc.addObject("PartDesign::Revolution", "Revolution002")
body2.addObject(revolution3)
revolution3.Profile = sketch11
revolution3.ReferenceAxis = (sketch11, ["Axis0"])
revolution3.setExpression("Angle", "Params.revolution3_angle")
body3 = doc.addObject("PartDesign::Body", "Body002")

# Sketch on YZ plane
sketch12 = doc.addObject("Sketcher::SketchObject", "Sketch011")
body3.addObject(sketch12)
sketch12.AttachmentSupport = (doc.getObject("YZ_Plane002"), [""])
sketch12.MapMode = "FlatFace"
add_polygon(sketch12, [(60.2, 323.41), (59.56, 323.85), (58.86, 323.85), (58.61, 323.6), (58.61, 321.94), (57.02, 321.94), (57.02, 317.5), (58.76, 317.5), (60.2, 318.94)])  # lines 0-8
sketch12.addGeometry(Part.LineSegment(App.Vector(57.02, 317.5, 0), App.Vector(57.02, 323.85, 0)), True)  # axis
sketch12.addConstraint(Sketcher.Constraint("Horizontal", 1))
sketch12.addConstraint(Sketcher.Constraint("Vertical", 3))
sketch12.addConstraint(Sketcher.Constraint("Horizontal", 4))
sketch12.addConstraint(Sketcher.Constraint("Vertical", 5))
sketch12.addConstraint(Sketcher.Constraint("Horizontal", 6))
sketch12.addConstraint(Sketcher.Constraint("Vertical", 8))
sketch12.addConstraint(Sketcher.Constraint("Vertical", 9))
sketch12.addConstraint(Sketcher.Constraint("Coincident", 9, 1, 5, 2))
sketch12.addConstraint(Sketcher.Constraint("Parallel", 2, 7))
sketch12.addConstraint(Sketcher.Constraint("Horizontal", 1, 2, 9, 2))
sketch12.addConstraint(Sketcher.Constraint("Angle", 0, Q("145 deg")))
sketch12.addConstraint(Sketcher.Constraint("Angle", 2, Q("-135 deg")))
sketch12.addConstraint(Sketcher.Constraint("DistanceY", 9, 1, 9, 2, Q("0.25 in")))
sketch12.addConstraint(Sketcher.Constraint("DistanceY", -1, 1, 5, 2, Q("12.5 in")))
sketch12.addConstraint(Sketcher.Constraint("DistanceX", 4, 2, 0, 2, Q("0.1 in")))
sketch12.addConstraint(Sketcher.Constraint("DistanceX", 4, 2, 4, 1, Q("0.0625 in")))
sketch12.addConstraint(Sketcher.Constraint("DistanceY", 5, 2, 5, 1, Q("0.175 in")))
sketch12.addConstraint(Sketcher.Constraint("DistanceX", -1, 1, 7, 2, Q("2.37 in")))
sketch12.addConstraint(Sketcher.Constraint("DistanceX", 6, 1, 6, 2, Q("0.0685 in")))
sketch12.addConstraint(Sketcher.Constraint("DistanceX", -1, 1, 0, 2, Q("2.345 in")))
sketch12.addConstraint(Sketcher.Constraint("DistanceX", 1, 2, 1, 1, Q("0.70739 mm")))
sketch12.setExpression("Constraints[21]", "Params.sketch12_height")
sketch12.setExpression("Constraints[24]", "Params.sketch12_width")
sketch12.setExpression("Constraints[25]", "Params.sketch12_height2")
revolution4 = doc.addObject("PartDesign::Revolution", "Revolution003")
body3.addObject(revolution4)
revolution4.Profile = sketch12
revolution4.ReferenceAxis = (sketch12, ["Axis0"])
revolution4.setExpression("Angle", "Params.revolution4_angle")

# Sketch on XY plane
sketch13 = doc.addObject("Sketcher::SketchObject", "Sketch012")
body3.addObject(sketch13)
sketch13.AttachmentSupport = (doc.getObject("XY_Plane002"), [""])
sketch13.MapMode = "FlatFace"
sketch13.AttachmentOffset = App.Placement(App.Vector(0, 0, 12.75 * 25.4), App.Rotation())
add_polygon(sketch13, [(0, 58.9), (-1.6, 57.9), (-1.6, 56.1), (0, 55.2), (1.6, 56.1), (1.6, 57.9)])  # lines 0-5
sketch13.addConstraint(Sketcher.Constraint("Vertical", 1))
sketch13.addConstraint(Sketcher.Constraint("Vertical", 4))
sketch13.addConstraint(Sketcher.Constraint("Symmetric", 1, 2, 3, 2, -2))
sketch13.addConstraint(Sketcher.Constraint("PointOnObject", 2, 2, -2))
sketch13.addConstraint(Sketcher.Constraint("PointOnObject", 5, 2, -2))
sketch13.addConstraint(Sketcher.Constraint("Parallel", 0, 3))
sketch13.addConstraint(Sketcher.Constraint("Parallel", 2, 5))
sketch13.addConstraint(Sketcher.Constraint("Angle", 0, Q("-150 deg")))
sketch13.addConstraint(Sketcher.Constraint("DistanceX", 0, 2, -1, 1, Q("0.0625 in")))
sketch13.addConstraint(Sketcher.Constraint("DistanceY", 1, 2, 1, 1, Q("1.833087 mm")))
sketch13.addConstraint(Sketcher.Constraint("DistanceY", -1, 1, 0, 2, Q("57.939544 mm")))
pocket6 = doc.addObject("PartDesign::Pocket", "Pocket005")
body3.addObject(pocket6)
pocket6.Profile = sketch13
pocket6.setExpression("Length", "Params.pocket6_length")

doc.recompute()
